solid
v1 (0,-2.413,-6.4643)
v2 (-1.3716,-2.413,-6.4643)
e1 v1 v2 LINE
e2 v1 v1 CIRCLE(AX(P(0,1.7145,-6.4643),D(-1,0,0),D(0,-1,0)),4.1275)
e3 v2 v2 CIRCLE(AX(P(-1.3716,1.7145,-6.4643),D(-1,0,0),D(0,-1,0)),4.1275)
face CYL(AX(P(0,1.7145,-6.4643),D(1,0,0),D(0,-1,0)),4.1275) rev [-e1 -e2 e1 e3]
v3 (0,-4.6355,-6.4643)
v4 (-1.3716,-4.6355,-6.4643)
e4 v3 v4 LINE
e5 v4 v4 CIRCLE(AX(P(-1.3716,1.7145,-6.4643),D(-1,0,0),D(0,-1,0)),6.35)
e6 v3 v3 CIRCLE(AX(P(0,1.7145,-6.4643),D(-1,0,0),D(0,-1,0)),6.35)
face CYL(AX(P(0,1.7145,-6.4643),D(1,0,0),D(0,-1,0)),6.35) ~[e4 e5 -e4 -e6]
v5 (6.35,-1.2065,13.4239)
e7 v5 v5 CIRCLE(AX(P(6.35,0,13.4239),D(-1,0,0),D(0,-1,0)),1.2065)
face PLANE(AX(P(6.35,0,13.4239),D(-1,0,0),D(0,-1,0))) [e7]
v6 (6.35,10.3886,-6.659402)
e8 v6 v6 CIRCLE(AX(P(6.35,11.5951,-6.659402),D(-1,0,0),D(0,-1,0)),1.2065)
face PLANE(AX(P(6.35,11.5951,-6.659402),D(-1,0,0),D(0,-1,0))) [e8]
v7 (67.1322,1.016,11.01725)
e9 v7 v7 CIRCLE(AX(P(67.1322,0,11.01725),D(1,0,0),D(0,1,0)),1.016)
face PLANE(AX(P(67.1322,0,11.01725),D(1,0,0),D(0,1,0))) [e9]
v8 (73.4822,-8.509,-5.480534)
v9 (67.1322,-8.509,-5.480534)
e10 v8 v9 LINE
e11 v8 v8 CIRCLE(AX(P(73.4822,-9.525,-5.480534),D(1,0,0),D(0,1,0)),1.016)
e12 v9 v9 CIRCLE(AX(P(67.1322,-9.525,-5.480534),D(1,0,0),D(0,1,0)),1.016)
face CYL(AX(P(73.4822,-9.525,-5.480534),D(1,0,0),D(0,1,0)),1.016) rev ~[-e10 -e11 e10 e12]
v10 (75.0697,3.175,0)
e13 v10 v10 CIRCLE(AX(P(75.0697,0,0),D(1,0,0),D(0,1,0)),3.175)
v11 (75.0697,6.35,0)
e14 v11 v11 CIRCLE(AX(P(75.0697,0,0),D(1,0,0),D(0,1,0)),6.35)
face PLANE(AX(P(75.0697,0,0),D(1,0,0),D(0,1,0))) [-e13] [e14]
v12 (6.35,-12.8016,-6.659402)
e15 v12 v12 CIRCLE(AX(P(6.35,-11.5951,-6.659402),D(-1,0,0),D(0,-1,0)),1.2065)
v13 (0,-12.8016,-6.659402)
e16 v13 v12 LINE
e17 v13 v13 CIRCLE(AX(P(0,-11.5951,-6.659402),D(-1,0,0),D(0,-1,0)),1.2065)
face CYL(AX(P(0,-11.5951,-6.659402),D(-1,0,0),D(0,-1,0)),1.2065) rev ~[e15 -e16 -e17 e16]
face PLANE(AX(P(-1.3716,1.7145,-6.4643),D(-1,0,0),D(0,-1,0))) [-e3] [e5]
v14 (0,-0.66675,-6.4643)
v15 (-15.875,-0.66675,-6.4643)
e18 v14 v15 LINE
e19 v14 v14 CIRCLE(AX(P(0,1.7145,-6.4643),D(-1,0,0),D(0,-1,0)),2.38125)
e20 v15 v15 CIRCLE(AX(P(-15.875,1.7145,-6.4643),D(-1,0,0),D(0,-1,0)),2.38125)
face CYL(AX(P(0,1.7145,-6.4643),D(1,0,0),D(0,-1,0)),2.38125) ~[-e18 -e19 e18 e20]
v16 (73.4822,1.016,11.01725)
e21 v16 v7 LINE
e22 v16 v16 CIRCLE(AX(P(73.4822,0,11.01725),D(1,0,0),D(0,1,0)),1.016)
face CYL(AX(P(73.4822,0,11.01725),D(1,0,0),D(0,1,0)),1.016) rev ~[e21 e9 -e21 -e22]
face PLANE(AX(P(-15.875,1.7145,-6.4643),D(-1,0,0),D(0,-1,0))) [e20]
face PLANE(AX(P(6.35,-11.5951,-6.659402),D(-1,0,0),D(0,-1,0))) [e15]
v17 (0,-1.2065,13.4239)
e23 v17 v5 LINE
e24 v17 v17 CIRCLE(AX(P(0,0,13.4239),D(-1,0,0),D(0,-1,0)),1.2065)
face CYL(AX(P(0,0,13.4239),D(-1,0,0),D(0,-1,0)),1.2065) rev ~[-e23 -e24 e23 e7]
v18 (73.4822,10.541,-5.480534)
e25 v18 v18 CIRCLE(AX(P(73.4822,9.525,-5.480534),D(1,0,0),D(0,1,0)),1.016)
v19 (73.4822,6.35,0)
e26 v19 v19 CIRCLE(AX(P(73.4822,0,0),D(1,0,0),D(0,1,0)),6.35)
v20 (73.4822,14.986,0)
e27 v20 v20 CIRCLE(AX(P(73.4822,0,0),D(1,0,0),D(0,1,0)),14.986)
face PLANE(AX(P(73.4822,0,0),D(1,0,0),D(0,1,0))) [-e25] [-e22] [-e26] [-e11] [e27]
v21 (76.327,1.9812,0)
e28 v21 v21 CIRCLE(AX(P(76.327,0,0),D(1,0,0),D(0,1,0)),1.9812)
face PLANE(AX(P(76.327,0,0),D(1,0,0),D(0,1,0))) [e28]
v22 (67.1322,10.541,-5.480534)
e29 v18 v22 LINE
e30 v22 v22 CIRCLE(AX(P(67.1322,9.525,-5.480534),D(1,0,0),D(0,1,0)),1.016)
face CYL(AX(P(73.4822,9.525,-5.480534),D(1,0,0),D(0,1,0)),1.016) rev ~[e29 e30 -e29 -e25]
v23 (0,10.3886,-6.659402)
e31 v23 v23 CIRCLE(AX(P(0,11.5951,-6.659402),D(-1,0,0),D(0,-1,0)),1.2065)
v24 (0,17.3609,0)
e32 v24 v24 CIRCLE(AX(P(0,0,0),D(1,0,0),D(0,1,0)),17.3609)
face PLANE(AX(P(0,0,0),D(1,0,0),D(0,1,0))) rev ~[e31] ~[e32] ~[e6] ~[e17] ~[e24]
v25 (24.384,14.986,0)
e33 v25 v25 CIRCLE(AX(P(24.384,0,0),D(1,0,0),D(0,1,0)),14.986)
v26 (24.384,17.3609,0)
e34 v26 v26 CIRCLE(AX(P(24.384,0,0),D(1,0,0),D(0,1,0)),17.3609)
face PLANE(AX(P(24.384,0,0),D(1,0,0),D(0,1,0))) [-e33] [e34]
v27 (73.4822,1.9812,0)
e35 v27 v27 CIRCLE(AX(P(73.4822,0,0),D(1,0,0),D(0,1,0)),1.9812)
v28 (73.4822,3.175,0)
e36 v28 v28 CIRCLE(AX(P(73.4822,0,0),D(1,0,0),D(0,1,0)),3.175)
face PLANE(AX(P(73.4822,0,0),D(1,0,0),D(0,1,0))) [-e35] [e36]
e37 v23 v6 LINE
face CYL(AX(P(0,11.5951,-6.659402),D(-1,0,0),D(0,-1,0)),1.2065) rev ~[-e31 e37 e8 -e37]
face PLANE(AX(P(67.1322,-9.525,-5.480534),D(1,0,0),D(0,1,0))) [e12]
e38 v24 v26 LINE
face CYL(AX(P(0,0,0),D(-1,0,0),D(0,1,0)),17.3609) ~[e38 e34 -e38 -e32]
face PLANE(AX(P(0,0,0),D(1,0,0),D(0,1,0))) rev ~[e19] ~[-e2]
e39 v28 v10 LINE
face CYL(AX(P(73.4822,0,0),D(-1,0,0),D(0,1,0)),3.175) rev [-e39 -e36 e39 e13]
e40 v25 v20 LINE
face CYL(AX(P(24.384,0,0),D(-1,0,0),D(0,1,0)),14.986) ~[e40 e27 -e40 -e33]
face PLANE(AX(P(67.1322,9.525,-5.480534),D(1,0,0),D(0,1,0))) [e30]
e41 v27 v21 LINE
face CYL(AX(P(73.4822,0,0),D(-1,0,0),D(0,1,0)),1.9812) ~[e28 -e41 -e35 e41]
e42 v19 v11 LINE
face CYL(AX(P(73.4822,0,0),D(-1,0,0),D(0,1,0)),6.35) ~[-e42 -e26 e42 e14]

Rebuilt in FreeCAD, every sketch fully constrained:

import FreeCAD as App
import Part
import Sketcher

V = App.Vector
Q = App.Units.Quantity

doc = App.newDocument("Part")
body = doc.addObject("PartDesign::Body", "Body")

# Sketch on YZ plane
sketch1 = body.newObject("Sketcher::SketchObject", "Sketch")
sketch1.AttachmentSupport = (doc.getObject("YZ_Plane"), [""])
sketch1.MapMode = "FlatFace"
sketch1.addGeometry(Part.Circle(V(0, 0, 0), V(0, 0, 1), 17), False)
sketch1.addConstraint(Sketcher.Constraint("Coincident", 0, 3, -1, 1))
sketch1.addConstraint(Sketcher.Constraint("Diameter", 0, Q("1.367 in")))
pad1 = body.newObject("PartDesign::Pad", "Pad")
pad1.Profile = sketch1
pad1.Length = Q("0.96 in")

# Sketch on YZ plane
sketch2 = body.newObject("Sketcher::SketchObject", "Sketch001")
sketch2.AttachmentSupport = (doc.getObject("YZ_Plane"), [""])
sketch2.MapMode = "FlatFace"
sketch2.AttachmentOffset = App.Placement(V(0, 0, 0.96 * 25.4), App.Rotation())
sketch2.addGeometry(Part.Circle(V(0, 0, 0), V(0, 0, 1), 15), False)
sketch2.addConstraint(Sketcher.Constraint("Coincident", 0, 3, -1, 1))
sketch2.addConstraint(Sketcher.Constraint("Diameter", 0, Q("1.18 in")))
pad2 = body.newObject("PartDesign::Pad", "Pad001")
pad2.Profile = sketch2
pad2.Length = Q("1.933 in")

# Sketch on YZ plane
sketch3 = body.newObject("Sketcher::SketchObject", "Sketch002")
sketch3.AttachmentSupport = (doc.getObject("YZ_Plane"), [""])
sketch3.MapMode = "FlatFace"
sketch3.AttachmentOffset = App.Placement(V(0, 0, 2.893 * 25.4), App.Rotation())
sketch3.addGeometry(Part.Circle(V(0, 11, 0), V(0, 0, 1), 1), False)
sketch3.addGeometry(Part.Circle(V(9.5, -5.5, 0), V(0, 0, 1), 1), False)
sketch3.addGeometry(Part.Circle(V(-9.5, -5.5, 0), V(0, 0, 1), 1), False)
sketch3.addConstraint(Sketcher.Constraint("Equal", 0, 1))
sketch3.addConstraint(Sketcher.Constraint("Equal", 1, 2))
sketch3.addConstraint(Sketcher.Constraint("Symmetric", 1, 3, 2, 3, -2))
sketch3.addConstraint(Sketcher.Constraint("PointOnObject", 0, 3, -2))
sketch3.addConstraint(Sketcher.Constraint("Diameter", 0, Q("0.08 in")))
sketch3.addConstraint(Sketcher.Constraint("DistanceX", 2, 3, 1, 3, Q("0.75 in")))
sketch3.addConstraint(Sketcher.Constraint("DistanceY", -1, 1, 0, 3, Q("11.01725 mm")))
sketch3.addConstraint(Sketcher.Constraint("DistanceY", 1, 3, -1, 1, Q("5.480534 mm")))
pocket1 = body.newObject("PartDesign::Pocket", "Pocket")
pocket1.Profile = sketch3
pocket1.Length = Q("0.25 in")

# Sketch on YZ plane
sketch4 = body.newObject("Sketcher::SketchObject", "Sketch003")
sketch4.AttachmentSupport = (doc.getObject("YZ_Plane"), [""])
sketch4.MapMode = "FlatFace"
sketch4.AttachmentOffset = App.Placement(V(0, 0, 2.893 * 25.4), App.Rotation())
sketch4.addGeometry(Part.Circle(V(0, 0, 0), V(0, 0, 1), 6.3), False)
sketch4.addGeometry(Part.Circle(V(0, 0, 0), V(0, 0, 1), 3.2), False)
sketch4.addConstraint(Sketcher.Constraint("Coincident", 0, 3, -1, 1))
sketch4.addConstraint(Sketcher.Constraint("Coincident", 1, 3, -1, 1))
sketch4.addConstraint(Sketcher.Constraint("Diameter", 0, Q("0.5 in")))
sketch4.addConstraint(Sketcher.Constraint("Diameter", 1, Q("0.25 in")))
pad3 = body.newObject("PartDesign::Pad", "Pad002")
pad3.Profile = sketch4
pad3.Length = Q("0.0625 in")

# Sketch on YZ plane
sketch5 = body.newObject("Sketcher::SketchObject", "Sketch004")
sketch5.AttachmentSupport = (doc.getObject("YZ_Plane"), [""])
sketch5.MapMode = "FlatFace"
sketch5.AttachmentOffset = App.Placement(V(0, 0, 2.893 * 25.4), App.Rotation())
sketch5.addGeometry(Part.Circle(V(0, 0, 0), V(0, 0, 1), 2), False)
sketch5.addConstraint(Sketcher.Constraint("Coincident", 0, 3, -1, 1))
sketch5.addConstraint(Sketcher.Constraint("Diameter", 0, Q("0.156 in")))
pad4 = body.newObject("PartDesign::Pad", "Pad003")
pad4.Profile = sketch5
pad4.Length = Q("0.112 in")

# Sketch on YZ plane
sketch6 = body.newObject("Sketcher::SketchObject", "Sketch005")
sketch6.AttachmentSupport = (doc.getObject("YZ_Plane"), [""])
sketch6.MapMode = "FlatFace"
sketch6.addGeometry(Part.Circle(V(0, 13.4, 0), V(0, 0, 1), 1.2), False)
sketch6.addGeometry(Part.Circle(V(-11.6, -6.7, 0), V(0, 0, 1), 1.2), False)
sketch6.addGeometry(Part.Circle(V(11.6, -6.7, 0), V(0, 0, 1), 1.2), False)
sketch6.addConstraint(Sketcher.Constraint("Equal", 0, 1))
sketch6.addConstraint(Sketcher.Constraint("Equal", 1, 2))
sketch6.addConstraint(Sketcher.Constraint("Symmetric", 1, 3, 2, 3, -2))
sketch6.addConstraint(Sketcher.Constraint("PointOnObject", 0, 3, -2))
sketch6.addConstraint(Sketcher.Constraint("Diameter", 0, Q("0.095 in")))
sketch6.addConstraint(Sketcher.Constraint("DistanceX", 1, 3, 2, 3, Q("0.913 in")))
sketch6.addConstraint(Sketcher.Constraint("DistanceY", -1, 1, 0, 3, Q("0.5285 in")))
sketch6.addConstraint(Sketcher.Constraint("DistanceY", 1, 3, 0, 3, Q("20.083302 mm")))
pocket2 = body.newObject("PartDesign::Pocket", "Pocket001")
pocket2.Profile = sketch6
pocket2.Length = Q("0.25 in")
pocket2.Reversed = True

# Sketch on YZ plane
sketch7 = body.newObject("Sketcher::SketchObject", "Sketch006")
sketch7.AttachmentSupport = (doc.getObject("YZ_Plane"), [""])
sketch7.MapMode = "FlatFace"
sketch7.addGeometry(Part.Circle(V(1.7, -6.5, 0), V(0, 0, 1), 6.3), False)
sketch7.addGeometry(Part.Circle(V(1.7, -6.5, 0), V(0, 0, 1), 4.1), False)
sketch7.addConstraint(Sketcher.Constraint("Coincident", 1, 3, 0, 3))
sketch7.addConstraint(Sketcher.Constraint("Diameter", 0, Q("0.5 in")))
sketch7.addConstraint(Sketcher.Constraint("Diameter", 1, Q("0.325 in")))
sketch7.addConstraint(Sketcher.Constraint("DistanceX", -1, 1, 0, 3, Q("0.0675 in")))
sketch7.addConstraint(Sketcher.Constraint("DistanceY", 0, 3, -1, 1, Q("0.2545 in")))
pad5 = body.newObject("PartDesign::Pad", "Pad004")
pad5.Profile = sketch7
pad5.Length = Q("0.054 in")
pad5.Reversed = True

# Sketch on YZ plane
sketch8 = body.newObject("Sketcher::SketchObject", "Sketch007")
sketch8.AttachmentSupport = (doc.getObject("YZ_Plane"), [""])
sketch8.MapMode = "FlatFace"
sketch8.addGeometry(Part.Circle(V(1.7, -6.5, 0), V(0, 0, 1), 2.4), False)
sketch8.addConstraint(Sketcher.Constraint("Diameter", 0, Q("0.1875 in")))
sketch8.addConstraint(Sketcher.Constraint("DistanceX", -1, 1, 0, 3, Q("0.0675 in")))
sketch8.addConstraint(Sketcher.Constraint("DistanceY", 0, 3, -1, 1, Q("0.2545 in")))
pad6 = body.newObject("PartDesign::Pad", "Pad005")
pad6.Profile = sketch8
pad6.Length = Q("0.625 in")
pad6.Reversed = True

doc.recompute()
